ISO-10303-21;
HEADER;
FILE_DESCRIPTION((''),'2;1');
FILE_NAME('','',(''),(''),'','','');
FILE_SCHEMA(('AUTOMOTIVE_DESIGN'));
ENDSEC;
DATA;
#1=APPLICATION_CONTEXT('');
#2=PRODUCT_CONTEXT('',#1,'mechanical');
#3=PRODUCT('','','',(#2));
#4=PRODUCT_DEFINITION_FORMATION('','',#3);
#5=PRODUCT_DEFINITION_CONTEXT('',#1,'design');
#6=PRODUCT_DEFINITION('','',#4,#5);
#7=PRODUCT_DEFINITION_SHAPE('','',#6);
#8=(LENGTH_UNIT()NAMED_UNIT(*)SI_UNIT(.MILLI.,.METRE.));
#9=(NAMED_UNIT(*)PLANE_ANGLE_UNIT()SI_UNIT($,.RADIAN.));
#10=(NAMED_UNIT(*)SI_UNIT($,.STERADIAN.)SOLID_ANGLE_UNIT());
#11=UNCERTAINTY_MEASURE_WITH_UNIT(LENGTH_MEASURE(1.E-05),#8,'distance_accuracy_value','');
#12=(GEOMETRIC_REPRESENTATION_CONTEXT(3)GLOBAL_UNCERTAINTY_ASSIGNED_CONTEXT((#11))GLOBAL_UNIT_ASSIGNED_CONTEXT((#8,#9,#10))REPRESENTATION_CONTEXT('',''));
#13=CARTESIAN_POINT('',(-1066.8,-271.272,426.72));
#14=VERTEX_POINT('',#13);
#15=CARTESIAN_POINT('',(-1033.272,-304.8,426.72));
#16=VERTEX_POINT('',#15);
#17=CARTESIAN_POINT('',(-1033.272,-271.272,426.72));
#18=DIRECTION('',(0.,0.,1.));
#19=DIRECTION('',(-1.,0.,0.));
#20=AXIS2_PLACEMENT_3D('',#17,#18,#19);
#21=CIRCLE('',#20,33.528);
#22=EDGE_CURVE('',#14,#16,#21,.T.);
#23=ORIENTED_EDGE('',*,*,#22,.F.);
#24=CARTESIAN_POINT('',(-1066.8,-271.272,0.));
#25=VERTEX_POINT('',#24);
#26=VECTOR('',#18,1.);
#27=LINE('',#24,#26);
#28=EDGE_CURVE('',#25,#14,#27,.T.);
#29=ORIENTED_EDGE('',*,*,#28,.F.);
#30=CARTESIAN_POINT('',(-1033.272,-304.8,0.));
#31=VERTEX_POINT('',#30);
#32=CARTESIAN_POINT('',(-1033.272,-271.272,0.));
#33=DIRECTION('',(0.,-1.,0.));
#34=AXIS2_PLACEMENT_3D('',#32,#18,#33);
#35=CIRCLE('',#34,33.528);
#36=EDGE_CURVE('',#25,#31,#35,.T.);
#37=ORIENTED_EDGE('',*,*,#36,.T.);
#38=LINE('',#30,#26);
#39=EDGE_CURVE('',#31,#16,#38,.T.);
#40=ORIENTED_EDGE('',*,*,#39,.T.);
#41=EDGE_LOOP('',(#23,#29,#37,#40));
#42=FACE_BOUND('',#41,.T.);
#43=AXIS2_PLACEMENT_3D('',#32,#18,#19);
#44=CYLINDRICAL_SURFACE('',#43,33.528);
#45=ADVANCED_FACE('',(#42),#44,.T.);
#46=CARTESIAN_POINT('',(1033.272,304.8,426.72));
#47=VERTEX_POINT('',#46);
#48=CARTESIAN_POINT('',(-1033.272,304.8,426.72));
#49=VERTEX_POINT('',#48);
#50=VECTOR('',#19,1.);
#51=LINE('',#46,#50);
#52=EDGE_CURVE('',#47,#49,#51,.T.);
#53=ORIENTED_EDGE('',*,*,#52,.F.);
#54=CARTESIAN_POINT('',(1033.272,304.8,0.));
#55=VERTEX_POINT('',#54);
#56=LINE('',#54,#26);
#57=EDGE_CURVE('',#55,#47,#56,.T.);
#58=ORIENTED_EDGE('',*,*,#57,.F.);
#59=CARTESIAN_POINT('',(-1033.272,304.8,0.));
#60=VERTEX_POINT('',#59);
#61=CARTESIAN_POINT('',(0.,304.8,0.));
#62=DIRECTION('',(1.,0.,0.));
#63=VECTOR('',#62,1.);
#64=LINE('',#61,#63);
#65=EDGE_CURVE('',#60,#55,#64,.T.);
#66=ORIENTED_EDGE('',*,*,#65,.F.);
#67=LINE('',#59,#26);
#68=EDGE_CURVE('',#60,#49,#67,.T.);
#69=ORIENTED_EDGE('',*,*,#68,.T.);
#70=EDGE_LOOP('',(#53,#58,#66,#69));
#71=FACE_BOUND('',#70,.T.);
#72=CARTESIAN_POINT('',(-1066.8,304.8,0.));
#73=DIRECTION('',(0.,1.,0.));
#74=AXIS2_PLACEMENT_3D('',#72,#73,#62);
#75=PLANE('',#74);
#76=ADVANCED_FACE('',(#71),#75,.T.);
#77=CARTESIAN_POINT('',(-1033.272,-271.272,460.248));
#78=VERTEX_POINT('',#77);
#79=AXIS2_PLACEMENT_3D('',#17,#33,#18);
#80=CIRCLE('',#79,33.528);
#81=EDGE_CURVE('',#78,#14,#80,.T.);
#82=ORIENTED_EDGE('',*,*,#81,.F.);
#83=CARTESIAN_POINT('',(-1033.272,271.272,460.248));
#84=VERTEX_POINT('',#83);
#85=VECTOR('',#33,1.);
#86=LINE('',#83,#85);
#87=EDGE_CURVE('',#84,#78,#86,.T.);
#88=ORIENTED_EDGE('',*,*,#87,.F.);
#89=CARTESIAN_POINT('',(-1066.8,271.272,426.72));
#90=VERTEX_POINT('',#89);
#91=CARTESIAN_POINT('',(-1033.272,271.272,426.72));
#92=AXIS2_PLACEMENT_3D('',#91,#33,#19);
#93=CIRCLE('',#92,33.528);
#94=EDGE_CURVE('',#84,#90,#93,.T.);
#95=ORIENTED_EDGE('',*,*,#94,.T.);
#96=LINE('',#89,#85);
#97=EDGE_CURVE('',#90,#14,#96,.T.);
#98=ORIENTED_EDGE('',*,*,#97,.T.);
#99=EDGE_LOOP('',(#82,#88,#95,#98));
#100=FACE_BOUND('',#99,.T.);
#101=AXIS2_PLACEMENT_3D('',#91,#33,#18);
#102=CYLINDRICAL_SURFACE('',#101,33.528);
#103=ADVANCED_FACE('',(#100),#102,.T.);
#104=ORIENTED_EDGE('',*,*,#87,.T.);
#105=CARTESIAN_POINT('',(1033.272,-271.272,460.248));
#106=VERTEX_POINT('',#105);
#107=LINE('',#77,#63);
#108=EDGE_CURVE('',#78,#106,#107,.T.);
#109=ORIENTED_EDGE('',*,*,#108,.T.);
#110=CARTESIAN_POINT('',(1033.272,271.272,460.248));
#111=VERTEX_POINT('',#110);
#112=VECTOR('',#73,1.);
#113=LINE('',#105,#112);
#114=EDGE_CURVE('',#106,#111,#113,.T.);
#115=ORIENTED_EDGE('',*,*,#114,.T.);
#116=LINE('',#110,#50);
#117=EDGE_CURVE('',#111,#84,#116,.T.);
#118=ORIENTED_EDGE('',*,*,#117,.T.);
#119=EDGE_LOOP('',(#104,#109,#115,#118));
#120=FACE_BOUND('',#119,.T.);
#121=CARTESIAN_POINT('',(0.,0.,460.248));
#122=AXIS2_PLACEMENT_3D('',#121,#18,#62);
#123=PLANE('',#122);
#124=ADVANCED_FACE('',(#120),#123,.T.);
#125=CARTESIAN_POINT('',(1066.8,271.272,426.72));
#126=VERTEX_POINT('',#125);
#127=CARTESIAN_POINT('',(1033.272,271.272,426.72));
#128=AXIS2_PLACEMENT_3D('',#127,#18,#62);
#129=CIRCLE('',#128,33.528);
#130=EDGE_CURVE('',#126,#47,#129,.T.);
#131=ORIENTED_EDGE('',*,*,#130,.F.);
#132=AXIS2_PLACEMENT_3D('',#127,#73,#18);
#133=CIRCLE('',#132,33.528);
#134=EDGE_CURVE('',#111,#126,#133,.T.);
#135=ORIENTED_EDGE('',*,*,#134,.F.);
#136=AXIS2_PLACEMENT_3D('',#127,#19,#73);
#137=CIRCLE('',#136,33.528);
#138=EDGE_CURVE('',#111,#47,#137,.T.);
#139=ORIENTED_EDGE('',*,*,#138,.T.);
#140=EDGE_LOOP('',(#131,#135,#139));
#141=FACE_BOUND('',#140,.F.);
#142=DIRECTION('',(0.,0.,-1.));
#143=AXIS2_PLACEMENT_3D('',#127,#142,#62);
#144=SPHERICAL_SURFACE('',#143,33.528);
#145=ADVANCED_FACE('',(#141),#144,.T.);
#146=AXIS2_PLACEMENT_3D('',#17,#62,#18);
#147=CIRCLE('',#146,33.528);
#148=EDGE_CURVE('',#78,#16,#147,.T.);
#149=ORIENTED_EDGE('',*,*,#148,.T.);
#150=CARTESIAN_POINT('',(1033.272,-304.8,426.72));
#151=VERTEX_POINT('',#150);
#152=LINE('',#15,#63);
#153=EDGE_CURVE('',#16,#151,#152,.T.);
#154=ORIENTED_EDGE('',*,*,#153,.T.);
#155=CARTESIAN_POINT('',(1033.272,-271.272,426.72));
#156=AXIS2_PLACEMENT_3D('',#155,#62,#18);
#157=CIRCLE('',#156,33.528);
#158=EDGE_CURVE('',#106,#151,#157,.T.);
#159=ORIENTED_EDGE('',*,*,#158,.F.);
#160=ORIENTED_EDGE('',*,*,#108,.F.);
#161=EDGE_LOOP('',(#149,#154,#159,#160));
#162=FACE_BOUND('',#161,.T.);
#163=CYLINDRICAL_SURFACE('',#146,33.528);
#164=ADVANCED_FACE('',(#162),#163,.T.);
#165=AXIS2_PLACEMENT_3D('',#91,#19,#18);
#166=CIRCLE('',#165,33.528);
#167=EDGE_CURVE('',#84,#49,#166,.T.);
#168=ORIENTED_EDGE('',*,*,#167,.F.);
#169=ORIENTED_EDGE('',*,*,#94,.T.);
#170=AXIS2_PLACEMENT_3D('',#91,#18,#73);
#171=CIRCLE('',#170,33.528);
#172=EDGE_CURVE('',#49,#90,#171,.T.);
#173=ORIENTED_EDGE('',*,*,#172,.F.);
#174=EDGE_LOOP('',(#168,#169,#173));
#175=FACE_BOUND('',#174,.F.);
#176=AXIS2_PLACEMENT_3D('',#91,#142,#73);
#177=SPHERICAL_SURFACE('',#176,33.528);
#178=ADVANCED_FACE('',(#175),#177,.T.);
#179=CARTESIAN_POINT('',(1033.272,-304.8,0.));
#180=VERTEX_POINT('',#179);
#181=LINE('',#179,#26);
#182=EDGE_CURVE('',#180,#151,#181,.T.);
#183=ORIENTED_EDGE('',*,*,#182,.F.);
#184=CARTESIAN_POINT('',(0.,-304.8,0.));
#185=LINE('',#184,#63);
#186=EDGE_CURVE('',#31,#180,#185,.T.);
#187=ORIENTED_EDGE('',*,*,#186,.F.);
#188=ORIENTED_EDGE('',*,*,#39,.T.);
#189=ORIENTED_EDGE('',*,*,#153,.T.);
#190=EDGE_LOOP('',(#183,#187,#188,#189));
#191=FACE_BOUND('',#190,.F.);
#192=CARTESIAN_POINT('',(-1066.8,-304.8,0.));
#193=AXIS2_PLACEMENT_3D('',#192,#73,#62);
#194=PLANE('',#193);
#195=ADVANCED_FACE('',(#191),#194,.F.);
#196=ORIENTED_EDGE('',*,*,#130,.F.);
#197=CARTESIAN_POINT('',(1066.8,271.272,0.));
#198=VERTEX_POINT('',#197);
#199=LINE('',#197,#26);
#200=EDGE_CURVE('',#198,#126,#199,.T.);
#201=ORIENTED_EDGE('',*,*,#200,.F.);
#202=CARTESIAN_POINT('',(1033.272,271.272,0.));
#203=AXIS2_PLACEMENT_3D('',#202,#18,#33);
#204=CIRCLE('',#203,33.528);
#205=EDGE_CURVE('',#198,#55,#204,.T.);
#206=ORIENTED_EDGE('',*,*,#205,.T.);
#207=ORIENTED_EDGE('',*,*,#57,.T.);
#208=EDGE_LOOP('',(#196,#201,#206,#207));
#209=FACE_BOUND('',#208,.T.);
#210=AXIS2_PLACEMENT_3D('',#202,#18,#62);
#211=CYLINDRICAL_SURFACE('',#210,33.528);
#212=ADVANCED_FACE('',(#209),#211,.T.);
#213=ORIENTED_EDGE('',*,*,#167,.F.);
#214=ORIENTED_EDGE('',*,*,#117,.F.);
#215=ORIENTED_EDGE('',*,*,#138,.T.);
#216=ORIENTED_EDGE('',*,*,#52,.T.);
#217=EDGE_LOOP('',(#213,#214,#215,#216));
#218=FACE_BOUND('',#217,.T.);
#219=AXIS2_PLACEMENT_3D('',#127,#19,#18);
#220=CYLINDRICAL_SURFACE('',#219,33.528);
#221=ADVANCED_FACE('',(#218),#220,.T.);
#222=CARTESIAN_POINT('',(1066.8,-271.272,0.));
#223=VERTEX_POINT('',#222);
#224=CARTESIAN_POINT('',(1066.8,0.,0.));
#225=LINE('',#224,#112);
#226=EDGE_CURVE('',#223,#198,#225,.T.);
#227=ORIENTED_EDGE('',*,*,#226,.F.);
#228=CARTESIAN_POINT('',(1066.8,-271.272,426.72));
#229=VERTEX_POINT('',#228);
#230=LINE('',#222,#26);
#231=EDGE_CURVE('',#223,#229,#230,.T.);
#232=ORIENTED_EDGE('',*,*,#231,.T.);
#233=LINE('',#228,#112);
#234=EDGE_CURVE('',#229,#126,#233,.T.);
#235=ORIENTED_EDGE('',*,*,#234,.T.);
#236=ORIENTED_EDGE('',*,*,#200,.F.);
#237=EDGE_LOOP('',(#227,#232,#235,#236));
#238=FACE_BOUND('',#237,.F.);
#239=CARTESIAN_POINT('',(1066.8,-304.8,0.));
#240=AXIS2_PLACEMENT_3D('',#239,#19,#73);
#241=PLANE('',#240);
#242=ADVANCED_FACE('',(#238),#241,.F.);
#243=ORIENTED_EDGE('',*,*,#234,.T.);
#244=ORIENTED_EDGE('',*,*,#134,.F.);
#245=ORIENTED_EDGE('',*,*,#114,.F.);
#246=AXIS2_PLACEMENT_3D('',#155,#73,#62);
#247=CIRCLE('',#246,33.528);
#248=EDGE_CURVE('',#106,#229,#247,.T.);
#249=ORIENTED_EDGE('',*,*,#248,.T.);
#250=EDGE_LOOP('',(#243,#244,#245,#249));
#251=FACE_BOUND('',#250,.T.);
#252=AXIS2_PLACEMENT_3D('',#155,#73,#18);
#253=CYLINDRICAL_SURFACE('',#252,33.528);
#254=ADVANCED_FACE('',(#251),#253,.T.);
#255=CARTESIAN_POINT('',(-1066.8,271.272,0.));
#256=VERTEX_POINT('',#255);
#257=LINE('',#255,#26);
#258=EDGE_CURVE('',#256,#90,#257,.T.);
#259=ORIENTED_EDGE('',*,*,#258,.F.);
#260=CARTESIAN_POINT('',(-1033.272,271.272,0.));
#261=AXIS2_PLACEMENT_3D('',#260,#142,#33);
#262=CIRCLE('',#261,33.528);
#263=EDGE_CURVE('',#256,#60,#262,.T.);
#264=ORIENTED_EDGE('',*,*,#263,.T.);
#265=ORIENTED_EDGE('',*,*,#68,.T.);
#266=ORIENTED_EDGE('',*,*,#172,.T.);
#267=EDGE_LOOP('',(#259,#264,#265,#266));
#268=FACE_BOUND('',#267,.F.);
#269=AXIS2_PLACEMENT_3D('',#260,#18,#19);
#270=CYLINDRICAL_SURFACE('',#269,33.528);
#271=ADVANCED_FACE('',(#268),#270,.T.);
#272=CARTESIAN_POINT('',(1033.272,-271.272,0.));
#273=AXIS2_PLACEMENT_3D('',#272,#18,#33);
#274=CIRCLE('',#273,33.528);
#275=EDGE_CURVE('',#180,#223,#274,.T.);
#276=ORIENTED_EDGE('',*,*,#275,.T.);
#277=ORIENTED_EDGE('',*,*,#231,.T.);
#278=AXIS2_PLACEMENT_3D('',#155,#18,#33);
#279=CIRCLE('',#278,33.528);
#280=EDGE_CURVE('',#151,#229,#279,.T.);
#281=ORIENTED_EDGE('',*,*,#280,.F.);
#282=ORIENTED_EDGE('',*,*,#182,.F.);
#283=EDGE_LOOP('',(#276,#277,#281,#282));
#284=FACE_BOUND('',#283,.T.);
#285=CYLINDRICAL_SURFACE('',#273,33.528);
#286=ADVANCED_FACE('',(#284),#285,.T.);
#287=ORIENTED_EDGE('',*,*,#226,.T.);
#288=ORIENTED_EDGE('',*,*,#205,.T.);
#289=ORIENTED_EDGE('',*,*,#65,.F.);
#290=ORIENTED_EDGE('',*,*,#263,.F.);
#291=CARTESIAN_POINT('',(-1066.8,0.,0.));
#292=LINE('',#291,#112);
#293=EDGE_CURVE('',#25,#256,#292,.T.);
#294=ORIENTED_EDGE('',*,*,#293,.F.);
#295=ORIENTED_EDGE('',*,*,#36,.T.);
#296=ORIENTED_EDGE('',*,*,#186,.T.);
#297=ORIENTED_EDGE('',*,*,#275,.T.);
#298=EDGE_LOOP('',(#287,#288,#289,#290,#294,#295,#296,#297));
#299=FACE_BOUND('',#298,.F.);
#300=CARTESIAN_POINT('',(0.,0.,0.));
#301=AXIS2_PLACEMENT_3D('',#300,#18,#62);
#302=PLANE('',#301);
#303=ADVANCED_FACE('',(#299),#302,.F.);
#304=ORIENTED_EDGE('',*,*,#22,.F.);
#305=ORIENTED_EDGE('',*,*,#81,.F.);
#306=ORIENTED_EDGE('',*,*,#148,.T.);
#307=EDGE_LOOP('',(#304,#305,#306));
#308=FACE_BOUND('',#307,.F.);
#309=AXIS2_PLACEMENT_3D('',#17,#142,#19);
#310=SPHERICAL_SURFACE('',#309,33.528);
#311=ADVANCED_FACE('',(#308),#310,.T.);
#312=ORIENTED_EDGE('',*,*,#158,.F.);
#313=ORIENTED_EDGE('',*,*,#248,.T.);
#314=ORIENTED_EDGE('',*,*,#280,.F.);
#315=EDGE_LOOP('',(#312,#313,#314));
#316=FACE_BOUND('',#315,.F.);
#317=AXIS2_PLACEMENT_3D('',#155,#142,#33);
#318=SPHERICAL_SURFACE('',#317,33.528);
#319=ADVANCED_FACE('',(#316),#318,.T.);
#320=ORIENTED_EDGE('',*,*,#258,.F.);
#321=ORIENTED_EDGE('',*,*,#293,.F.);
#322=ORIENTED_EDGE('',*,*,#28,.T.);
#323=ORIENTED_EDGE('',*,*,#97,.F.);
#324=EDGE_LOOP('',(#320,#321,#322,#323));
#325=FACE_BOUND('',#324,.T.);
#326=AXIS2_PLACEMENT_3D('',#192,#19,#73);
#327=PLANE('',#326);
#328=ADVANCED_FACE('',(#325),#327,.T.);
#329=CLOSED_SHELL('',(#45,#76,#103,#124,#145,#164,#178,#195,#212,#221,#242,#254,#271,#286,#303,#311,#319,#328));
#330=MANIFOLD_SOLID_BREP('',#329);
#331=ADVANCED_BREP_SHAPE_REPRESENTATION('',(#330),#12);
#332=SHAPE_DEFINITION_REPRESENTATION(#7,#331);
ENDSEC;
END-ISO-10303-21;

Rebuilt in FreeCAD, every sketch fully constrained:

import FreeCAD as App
import Part
import Sketcher
from FreeCAD import Vector
Q = App.Units.Quantity


def edges_at(feature, points):
    """Names of the edges that pass closest to the given points."""
    edges = feature.Shape.Edges
    near = lambda p: min(range(len(edges)), key=lambda i: edges[i].distToShape(Part.Vertex(*p))[0])
    return sorted({f"Edge{near(p) + 1}" for p in points})

doc = App.newDocument("Part")
body = doc.addObject("PartDesign::Body", "Body")

# Sketch on XY plane
sketch1 = body.newObject("Sketcher::SketchObject", "Sketch")
sketch1.AttachmentSupport = (doc.getObject("XY_Plane"), [""])
sketch1.MapMode = "FlatFace"
sketch1.addGeometry(Part.LineSegment(Vector(-1067, 305, 0), Vector(-1067, -305, 0)), False)
sketch1.addGeometry(Part.LineSegment(Vector(-1067, -305, 0), Vector(1067, -305, 0)), False)
sketch1.addGeometry(Part.LineSegment(Vector(1067, -305, 0), Vector(1067, 305, 0)), False)
sketch1.addGeometry(Part.LineSegment(Vector(1067, 305, 0), Vector(-1067, 305, 0)), False)
sketch1.addConstraint(Sketcher.Constraint("Coincident", 0, 2, 1, 1))
sketch1.addConstraint(Sketcher.Constraint("Coincident", 1, 2, 2, 1))
sketch1.addConstraint(Sketcher.Constraint("Coincident", 2, 2, 3, 1))
sketch1.addConstraint(Sketcher.Constraint("Coincident", 3, 2, 0, 1))
sketch1.addConstraint(Sketcher.Constraint("Vertical", 0))
sketch1.addConstraint(Sketcher.Constraint("Horizontal", 1))
sketch1.addConstraint(Sketcher.Constraint("Vertical", 2))
sketch1.addConstraint(Sketcher.Constraint("Horizontal", 3))
sketch1.addConstraint(Sketcher.Constraint("Symmetric", 0, 2, 2, 2, -1, 1))
sketch1.addConstraint(Sketcher.Constraint("DistanceX", 1, 1, 1, 2, Q("84 in")))
sketch1.addConstraint(Sketcher.Constraint("DistanceY", 0, 2, 0, 1, Q("24 in")))
pad1 = body.newObject("PartDesign::Pad", "Pad")
pad1.Profile = sketch1
pad1.Length = Q("18.12 in")
doc.recompute()

fillet = body.newObject("PartDesign::Fillet", "Fillet")
fillet.Base = (pad1, edges_at(pad1, [
    (1066.8, -304.8, 230.124),
    (1066.8, 304.8, 230.124),
    (-1066.8, -304.8, 230.124),
    (-1066.8, 304.8, 230.124),
]))
fillet.Radius = Q("1.32 in")
doc.recompute()

fillet2 = body.newObject("PartDesign::Fillet", "Fillet001")
fillet2.Base = (fillet, edges_at(fillet, [(0, -304.8, 460.248)]))
fillet2.Radius = Q("1.32 in")

doc.recompute()
